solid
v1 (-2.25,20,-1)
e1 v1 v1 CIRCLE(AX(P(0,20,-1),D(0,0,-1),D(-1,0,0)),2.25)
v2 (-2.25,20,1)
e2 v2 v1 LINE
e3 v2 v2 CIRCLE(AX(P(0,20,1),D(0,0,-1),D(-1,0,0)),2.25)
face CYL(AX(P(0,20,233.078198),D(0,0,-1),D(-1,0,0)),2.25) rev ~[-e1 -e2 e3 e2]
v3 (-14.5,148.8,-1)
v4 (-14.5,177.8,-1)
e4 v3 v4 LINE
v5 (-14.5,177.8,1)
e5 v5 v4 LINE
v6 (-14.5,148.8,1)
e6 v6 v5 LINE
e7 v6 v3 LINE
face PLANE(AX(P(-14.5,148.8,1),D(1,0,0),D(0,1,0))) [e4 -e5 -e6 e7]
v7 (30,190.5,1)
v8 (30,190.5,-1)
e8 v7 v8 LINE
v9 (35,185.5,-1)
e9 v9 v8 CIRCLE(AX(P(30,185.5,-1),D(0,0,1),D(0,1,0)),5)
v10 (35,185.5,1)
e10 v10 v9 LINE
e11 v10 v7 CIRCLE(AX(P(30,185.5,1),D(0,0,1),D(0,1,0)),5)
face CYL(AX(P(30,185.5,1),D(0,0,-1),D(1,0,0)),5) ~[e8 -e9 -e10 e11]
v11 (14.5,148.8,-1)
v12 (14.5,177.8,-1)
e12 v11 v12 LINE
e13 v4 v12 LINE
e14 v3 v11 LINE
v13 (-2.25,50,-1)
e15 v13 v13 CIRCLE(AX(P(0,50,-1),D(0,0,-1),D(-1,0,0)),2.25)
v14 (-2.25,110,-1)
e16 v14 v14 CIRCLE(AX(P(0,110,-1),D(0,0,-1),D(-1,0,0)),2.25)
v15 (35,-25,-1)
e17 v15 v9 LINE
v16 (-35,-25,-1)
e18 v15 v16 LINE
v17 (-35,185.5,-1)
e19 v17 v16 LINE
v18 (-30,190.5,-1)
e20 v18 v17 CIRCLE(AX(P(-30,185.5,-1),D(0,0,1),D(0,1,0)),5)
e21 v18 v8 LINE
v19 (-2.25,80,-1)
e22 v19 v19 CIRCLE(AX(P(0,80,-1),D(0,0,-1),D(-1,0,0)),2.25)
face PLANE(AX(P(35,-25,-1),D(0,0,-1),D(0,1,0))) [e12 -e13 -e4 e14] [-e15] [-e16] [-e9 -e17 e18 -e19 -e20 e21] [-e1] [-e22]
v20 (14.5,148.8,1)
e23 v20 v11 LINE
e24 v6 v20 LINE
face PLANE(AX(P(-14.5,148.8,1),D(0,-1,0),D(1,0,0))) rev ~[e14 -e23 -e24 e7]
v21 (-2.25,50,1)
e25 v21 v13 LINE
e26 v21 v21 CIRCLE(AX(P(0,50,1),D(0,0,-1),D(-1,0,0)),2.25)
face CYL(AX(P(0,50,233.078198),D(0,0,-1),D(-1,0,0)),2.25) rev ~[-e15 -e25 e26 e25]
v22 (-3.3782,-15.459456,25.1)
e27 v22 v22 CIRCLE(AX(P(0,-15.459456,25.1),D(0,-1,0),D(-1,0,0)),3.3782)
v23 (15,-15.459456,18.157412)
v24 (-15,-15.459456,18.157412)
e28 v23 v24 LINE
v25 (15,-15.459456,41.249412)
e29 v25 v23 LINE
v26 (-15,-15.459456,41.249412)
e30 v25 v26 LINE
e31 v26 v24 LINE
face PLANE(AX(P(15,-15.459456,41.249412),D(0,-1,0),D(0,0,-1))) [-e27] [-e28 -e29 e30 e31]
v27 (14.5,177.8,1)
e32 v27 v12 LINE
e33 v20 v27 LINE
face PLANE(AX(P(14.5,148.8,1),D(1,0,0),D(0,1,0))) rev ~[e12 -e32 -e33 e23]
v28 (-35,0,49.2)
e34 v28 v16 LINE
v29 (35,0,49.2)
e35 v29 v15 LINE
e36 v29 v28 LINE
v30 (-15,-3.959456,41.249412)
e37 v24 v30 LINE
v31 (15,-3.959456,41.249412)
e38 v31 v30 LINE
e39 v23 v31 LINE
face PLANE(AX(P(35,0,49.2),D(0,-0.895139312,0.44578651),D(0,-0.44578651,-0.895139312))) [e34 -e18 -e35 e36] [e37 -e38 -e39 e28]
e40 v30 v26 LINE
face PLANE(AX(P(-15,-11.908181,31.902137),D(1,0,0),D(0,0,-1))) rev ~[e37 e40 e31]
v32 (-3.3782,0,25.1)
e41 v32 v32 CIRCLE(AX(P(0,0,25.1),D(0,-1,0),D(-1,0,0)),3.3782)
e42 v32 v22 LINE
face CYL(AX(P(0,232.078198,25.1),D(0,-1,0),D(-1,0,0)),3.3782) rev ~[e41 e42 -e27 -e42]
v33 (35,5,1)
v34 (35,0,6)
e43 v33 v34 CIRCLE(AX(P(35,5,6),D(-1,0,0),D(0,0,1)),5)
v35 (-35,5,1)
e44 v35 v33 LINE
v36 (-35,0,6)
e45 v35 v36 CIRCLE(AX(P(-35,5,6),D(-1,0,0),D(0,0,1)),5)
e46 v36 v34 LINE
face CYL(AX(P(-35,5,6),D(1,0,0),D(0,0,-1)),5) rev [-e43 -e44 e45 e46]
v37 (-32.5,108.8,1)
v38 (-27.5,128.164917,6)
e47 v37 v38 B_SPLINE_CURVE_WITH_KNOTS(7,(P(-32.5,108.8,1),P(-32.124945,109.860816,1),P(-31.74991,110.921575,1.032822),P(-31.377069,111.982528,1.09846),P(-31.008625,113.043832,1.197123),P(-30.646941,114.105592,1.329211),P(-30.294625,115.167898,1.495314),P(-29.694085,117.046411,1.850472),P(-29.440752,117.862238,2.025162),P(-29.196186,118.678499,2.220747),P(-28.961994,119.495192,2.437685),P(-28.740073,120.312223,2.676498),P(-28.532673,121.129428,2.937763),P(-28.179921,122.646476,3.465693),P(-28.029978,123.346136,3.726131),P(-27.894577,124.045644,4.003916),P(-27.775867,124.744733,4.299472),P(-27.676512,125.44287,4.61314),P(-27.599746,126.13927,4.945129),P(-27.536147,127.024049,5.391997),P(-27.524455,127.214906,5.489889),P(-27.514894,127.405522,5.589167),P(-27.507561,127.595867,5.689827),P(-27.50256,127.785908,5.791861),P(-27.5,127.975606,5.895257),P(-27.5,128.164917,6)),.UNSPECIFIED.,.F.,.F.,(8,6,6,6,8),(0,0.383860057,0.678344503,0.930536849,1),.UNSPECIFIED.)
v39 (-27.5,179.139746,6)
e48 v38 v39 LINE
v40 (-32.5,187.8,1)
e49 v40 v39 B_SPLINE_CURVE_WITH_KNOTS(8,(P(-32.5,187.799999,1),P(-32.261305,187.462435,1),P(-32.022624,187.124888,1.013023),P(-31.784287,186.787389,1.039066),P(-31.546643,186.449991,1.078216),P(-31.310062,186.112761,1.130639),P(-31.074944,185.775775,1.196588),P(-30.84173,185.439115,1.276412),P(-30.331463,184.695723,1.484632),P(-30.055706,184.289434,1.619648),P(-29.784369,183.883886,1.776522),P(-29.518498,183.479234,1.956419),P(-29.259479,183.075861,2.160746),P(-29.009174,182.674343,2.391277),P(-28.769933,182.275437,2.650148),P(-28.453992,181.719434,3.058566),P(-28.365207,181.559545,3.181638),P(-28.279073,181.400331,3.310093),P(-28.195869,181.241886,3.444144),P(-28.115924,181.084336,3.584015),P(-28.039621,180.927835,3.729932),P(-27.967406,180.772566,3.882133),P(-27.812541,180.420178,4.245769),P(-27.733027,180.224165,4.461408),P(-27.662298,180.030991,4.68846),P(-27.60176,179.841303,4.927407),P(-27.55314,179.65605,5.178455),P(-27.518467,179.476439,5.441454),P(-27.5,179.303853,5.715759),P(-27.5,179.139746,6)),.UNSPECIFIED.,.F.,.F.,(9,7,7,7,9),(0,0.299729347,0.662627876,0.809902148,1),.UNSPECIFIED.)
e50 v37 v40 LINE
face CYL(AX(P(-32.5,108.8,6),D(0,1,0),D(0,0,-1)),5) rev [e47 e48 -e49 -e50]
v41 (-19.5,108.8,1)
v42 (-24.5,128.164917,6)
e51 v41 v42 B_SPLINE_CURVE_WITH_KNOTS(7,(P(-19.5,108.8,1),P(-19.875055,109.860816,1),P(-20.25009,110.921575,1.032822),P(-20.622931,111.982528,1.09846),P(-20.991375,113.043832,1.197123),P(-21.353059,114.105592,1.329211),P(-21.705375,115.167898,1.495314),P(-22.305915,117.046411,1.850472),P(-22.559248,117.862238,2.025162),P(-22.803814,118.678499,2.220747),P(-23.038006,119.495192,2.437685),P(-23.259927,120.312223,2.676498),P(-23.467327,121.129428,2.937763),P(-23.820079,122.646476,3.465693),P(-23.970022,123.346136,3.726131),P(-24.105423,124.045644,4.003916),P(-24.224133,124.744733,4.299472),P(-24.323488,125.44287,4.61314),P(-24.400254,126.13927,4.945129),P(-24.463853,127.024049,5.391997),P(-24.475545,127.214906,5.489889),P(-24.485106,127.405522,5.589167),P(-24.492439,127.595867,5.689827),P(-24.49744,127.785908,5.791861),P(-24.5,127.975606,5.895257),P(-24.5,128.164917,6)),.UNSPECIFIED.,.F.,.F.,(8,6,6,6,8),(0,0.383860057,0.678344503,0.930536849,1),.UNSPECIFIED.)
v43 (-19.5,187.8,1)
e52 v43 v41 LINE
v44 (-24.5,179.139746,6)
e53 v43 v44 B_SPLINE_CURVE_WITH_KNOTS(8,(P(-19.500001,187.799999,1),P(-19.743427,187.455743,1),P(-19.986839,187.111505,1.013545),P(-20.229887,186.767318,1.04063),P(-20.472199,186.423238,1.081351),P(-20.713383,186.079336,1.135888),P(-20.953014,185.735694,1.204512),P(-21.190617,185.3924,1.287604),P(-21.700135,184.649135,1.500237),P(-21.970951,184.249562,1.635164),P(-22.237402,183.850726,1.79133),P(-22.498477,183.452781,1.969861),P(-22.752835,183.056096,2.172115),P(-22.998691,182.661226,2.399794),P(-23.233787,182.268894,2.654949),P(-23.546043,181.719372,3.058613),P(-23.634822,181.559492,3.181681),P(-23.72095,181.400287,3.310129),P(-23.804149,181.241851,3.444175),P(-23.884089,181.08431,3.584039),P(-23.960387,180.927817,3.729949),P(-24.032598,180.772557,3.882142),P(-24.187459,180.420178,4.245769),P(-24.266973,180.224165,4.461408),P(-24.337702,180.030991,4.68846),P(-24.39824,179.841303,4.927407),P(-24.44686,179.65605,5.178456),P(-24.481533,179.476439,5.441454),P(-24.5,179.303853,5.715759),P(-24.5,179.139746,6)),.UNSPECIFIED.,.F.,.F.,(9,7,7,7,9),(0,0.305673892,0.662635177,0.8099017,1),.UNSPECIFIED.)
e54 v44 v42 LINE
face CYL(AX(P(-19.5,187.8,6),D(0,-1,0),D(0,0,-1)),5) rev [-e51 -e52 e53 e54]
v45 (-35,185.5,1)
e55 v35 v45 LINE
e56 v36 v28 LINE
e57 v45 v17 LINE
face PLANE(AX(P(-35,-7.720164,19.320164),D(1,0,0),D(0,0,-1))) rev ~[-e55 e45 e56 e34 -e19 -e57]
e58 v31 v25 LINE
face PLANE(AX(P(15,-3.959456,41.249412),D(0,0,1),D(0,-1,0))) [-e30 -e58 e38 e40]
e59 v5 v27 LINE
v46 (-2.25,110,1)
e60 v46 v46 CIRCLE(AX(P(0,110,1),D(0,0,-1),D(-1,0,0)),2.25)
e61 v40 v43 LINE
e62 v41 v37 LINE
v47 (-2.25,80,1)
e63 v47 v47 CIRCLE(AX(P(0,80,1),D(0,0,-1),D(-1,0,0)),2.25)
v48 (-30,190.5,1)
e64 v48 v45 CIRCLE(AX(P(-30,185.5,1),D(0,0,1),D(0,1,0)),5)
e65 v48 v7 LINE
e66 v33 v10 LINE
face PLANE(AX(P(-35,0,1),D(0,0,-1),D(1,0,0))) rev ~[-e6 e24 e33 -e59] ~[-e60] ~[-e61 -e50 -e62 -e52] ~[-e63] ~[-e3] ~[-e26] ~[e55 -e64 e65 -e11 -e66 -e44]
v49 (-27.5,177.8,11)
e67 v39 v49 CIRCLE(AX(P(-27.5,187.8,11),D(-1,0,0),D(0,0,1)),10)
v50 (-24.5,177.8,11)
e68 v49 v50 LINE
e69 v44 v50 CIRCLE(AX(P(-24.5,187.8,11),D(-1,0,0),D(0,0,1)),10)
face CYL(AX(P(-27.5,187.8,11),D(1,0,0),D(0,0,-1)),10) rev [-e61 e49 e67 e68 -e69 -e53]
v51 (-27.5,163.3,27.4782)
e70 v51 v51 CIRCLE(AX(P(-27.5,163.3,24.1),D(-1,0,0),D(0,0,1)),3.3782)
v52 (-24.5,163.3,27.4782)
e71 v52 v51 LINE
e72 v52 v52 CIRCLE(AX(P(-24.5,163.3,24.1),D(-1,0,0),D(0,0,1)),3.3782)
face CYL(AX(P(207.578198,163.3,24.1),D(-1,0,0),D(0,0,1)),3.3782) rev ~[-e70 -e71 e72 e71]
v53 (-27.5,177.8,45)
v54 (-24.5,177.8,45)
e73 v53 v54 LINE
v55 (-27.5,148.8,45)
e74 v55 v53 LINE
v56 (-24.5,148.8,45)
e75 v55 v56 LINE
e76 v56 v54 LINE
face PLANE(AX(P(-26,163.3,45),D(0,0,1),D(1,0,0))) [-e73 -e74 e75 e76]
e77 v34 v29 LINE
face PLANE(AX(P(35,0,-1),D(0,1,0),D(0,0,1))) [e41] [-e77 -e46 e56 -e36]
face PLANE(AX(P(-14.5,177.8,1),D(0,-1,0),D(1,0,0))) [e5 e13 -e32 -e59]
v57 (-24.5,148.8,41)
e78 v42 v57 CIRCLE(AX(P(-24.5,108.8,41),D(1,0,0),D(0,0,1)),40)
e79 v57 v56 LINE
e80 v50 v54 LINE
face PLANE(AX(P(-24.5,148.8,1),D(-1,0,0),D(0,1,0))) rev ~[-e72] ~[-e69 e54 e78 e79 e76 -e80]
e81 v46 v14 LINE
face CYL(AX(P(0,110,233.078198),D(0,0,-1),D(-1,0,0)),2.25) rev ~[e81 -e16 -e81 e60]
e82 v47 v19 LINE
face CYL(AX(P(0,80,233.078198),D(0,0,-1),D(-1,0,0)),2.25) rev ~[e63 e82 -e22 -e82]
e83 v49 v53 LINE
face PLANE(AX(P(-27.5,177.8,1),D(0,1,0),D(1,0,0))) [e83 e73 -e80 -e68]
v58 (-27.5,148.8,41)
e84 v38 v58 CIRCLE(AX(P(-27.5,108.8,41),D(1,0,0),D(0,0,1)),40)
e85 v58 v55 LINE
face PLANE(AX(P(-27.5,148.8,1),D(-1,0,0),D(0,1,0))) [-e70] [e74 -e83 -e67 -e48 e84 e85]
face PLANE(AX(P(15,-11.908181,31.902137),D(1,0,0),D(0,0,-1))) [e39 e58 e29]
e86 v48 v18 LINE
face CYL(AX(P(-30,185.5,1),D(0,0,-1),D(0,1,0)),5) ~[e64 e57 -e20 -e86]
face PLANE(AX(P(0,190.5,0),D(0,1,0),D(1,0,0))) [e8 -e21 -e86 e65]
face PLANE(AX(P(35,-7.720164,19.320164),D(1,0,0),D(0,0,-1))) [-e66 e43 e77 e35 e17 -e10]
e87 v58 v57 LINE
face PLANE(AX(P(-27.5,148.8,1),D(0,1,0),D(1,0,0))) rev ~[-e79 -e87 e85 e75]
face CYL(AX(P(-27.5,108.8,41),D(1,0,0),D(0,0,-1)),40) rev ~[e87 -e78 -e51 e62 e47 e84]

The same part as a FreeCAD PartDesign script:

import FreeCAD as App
import Part
import Sketcher
from FreeCAD import Vector


def edges_at(feature, points):
    """Names of the edges that pass closest to the given points."""
    edges = feature.Shape.Edges
    near = lambda p: min(range(len(edges)), key=lambda i: edges[i].distToShape(Part.Vertex(*p))[0])
    return sorted({f"Edge{near(p) + 1}" for p in points})

doc = App.newDocument("Part")
body = doc.addObject("PartDesign::Body", "Body")

# Sketch on XZ plane
sketch1 = body.newObject("Sketcher::SketchObject", "Sketch")
sketch1.AttachmentSupport = (doc.getObject("XZ_Plane"), [""])
sketch1.MapMode = "FlatFace"
sketch1.addGeometry([
    Part.LineSegment(Vector(-35, -1, 0), Vector(-35, 1, 0)),
    Part.LineSegment(Vector(-35, 1, 0), Vector(35, 1, 0)),
    Part.LineSegment(Vector(35, 1, 0), Vector(35, -1, 0)),
    Part.LineSegment(Vector(35, -1, 0), Vector(-35, -1, 0)),
], False)
sketch1.addConstraint([
    Sketcher.Constraint("Coincident", 0, 2, 1, 1),
    Sketcher.Constraint("Coincident", 1, 2, 2, 1),
    Sketcher.Constraint("Coincident", 2, 2, 3, 1),
    Sketcher.Constraint("Coincident", 3, 2, 0, 1),
    Sketcher.Constraint("Vertical", 0),
    Sketcher.Constraint("Horizontal", 1),
    Sketcher.Constraint("Vertical", 2),
    Sketcher.Constraint("Horizontal", 3),
    Sketcher.Constraint("Symmetric", 0, 2, 2, 2, -1, 1),
    Sketcher.Constraint("DistanceX", 1, 1, 1, 2, 70.0),
    Sketcher.Constraint("DistanceY", 0, 1, 0, 2, 2.0),
])
pad1 = body.newObject("PartDesign::Pad", "Pad")
pad1.Profile = sketch1
pad1.Length = 190.5
pad1.Reversed = True

# Sketch on YZ plane
sketch2 = body.newObject("Sketcher::SketchObject", "Sketch001")
sketch2.AttachmentSupport = (doc.getObject("YZ_Plane"), [""])
sketch2.MapMode = "FlatFace"
sketch2.AttachmentOffset = App.Placement(Vector(0, 0, 35), App.Rotation())
sketch2.addGeometry([
    Part.LineSegment(Vector(0, -1, 0), Vector(0, 49, 0)),
    Part.LineSegment(Vector(0, 49, 0), Vector(-25, -1, 0)),
    Part.LineSegment(Vector(-25, -1, 0), Vector(0, -1, 0)),
], False)
sketch2.addConstraint([
    Sketcher.Constraint("Coincident", 0, 2, 1, 1),
    Sketcher.Constraint("Coincident", 1, 2, 2, 1),
    Sketcher.Constraint("Coincident", 2, 2, 0, 1),
    Sketcher.Constraint("Vertical", 0),
    Sketcher.Constraint("Horizontal", 2),
    Sketcher.Constraint("PointOnObject", 0, 2, -2),
    Sketcher.Constraint("DistanceX", 2, 1, 2, 2, 25.0),
    Sketcher.Constraint("DistanceY", 0, 1, 0, 2, 50.2),
    Sketcher.Constraint("DistanceY", 1, 2, -1, 1, 1.0),
])
pad2 = body.newObject("PartDesign::Pad", "Pad001")
pad2.Profile = sketch2
pad2.Length = 70
pad2.Reversed = True

# Sketch on XY plane
sketch3 = body.newObject("Sketcher::SketchObject", "Sketch002")
sketch3.AttachmentSupport = (doc.getObject("XY_Plane"), [""])
sketch3.MapMode = "FlatFace"
sketch3.AttachmentOffset = App.Placement(Vector(0, 0, 1), App.Rotation())
sketch3.addGeometry([
    Part.LineSegment(Vector(-27.5, 177.8, 0), Vector(-27.5, 148.8, 0)),
    Part.LineSegment(Vector(-27.5, 148.8, 0), Vector(-24.5, 148.8, 0)),
    Part.LineSegment(Vector(-24.5, 148.8, 0), Vector(-24.5, 177.8, 0)),
    Part.LineSegment(Vector(-24.5, 177.8, 0), Vector(-27.5, 177.8, 0)),
], False)
sketch3.addConstraint([
    Sketcher.Constraint("Coincident", 0, 2, 1, 1),
    Sketcher.Constraint("Coincident", 1, 2, 2, 1),
    Sketcher.Constraint("Coincident", 2, 2, 3, 1),
    Sketcher.Constraint("Coincident", 3, 2, 0, 1),
    Sketcher.Constraint("Vertical", 0),
    Sketcher.Constraint("Horizontal", 1),
    Sketcher.Constraint("Vertical", 2),
    Sketcher.Constraint("Horizontal", 3),
    Sketcher.Constraint("DistanceX", 1, 1, 1, 2, 3.0),
    Sketcher.Constraint("DistanceY", 0, 2, 0, 1, 29.0),
    Sketcher.Constraint("DistanceX", 0, 2, -1, 1, 27.5),
    Sketcher.Constraint("DistanceY", -1, 1, 0, 2, 148.8),
])
pad3 = body.newObject("PartDesign::Pad", "Pad002")
pad3.Profile = sketch3
pad3.Length = 44
doc.recompute()

fillet = body.newObject("PartDesign::Fillet", "Fillet")
fillet.Base = (pad3, edges_at(pad3, [(-26, 148.8, 1)]))
fillet.Radius = 40
doc.recompute()

fillet2 = body.newObject("PartDesign::Fillet", "Fillet001")
fillet2.Base = (fillet, edges_at(fillet, [(-26, 177.8, 1)]))
fillet2.Radius = 10
doc.recompute()

fillet3 = body.newObject("PartDesign::Fillet", "Fillet002")
fillet3.Base = (fillet2, edges_at(fillet2, [(-27.5, 148.3, 1)]))
fillet3.Radius = 5

# Sketch on YZ plane
sketch4 = body.newObject("Sketcher::SketchObject", "Sketch003")
sketch4.AttachmentSupport = (doc.getObject("YZ_Plane"), [""])
sketch4.MapMode = "FlatFace"
sketch4.addGeometry([
    Part.LineSegment(Vector(-15, 41, 0), Vector(-4, 41, 0)),
    Part.LineSegment(Vector(-4, 41, 0), Vector(-15, 18, 0)),
    Part.LineSegment(Vector(-15, 18, 0), Vector(-15, 41, 0)),
], False)
sketch4.addConstraint([
    Sketcher.Constraint("Coincident", 0, 2, 1, 1),
    Sketcher.Constraint("Coincident", 1, 2, 2, 1),
    Sketcher.Constraint("Coincident", 2, 2, 0, 1),
    Sketcher.Constraint("Horizontal", 0),
    Sketcher.Constraint("Vertical", 2),
    Sketcher.Constraint("DistanceX", 0, 1, 0, 2, 11.5),
    Sketcher.Constraint("DistanceY", 2, 1, 2, 2, 23.092),
    Sketcher.Constraint("DistanceX", 0, 2, -1, 1, 3.959456),
    Sketcher.Constraint("DistanceY", -1, 1, 0, 2, 41.249412),
])
pad4 = body.newObject("PartDesign::Pad", "Pad003")
pad4.Profile = sketch4
pad4.Type = "TwoLengths"
pad4.Length = 15
pad4.Length2 = 15
pad4.Reversed = True

# Sketch on XZ plane
sketch5 = body.newObject("Sketcher::SketchObject", "Sketch004")
sketch5.AttachmentSupport = (doc.getObject("XZ_Plane"), [""])
sketch5.MapMode = "FlatFace"
sketch5.addGeometry(Part.Circle(Vector(0, 25.1, 0), Vector(0, 0, 1), 3.4), False)
sketch5.addConstraint([
    Sketcher.Constraint("PointOnObject", 0, 3, -2),
    Sketcher.Constraint("Diameter", 0, 6.7564),
    Sketcher.Constraint("DistanceY", -1, 1, 0, 3, 25.1),
])
doc.recompute()
hole = body.newObject("PartDesign::Hole", "Hole")
hole.Profile = sketch5
hole.ThreadType = "None"
hole.Diameter = 6.7564
hole.DepthType = "ThroughAll"
hole.Reversed = True

# Sketch on YZ plane
sketch6 = body.newObject("Sketcher::SketchObject", "Sketch005")
sketch6.AttachmentSupport = (doc.getObject("YZ_Plane"), [""])
sketch6.MapMode = "FlatFace"
sketch6.AttachmentOffset = App.Placement(Vector(0, 0, -24.5), App.Rotation())
sketch6.addGeometry(Part.Circle(Vector(163.3, 24.1, 0), Vector(0, 0, 1), 3.4), False)
sketch6.addConstraint([
    Sketcher.Constraint("Diameter", 0, 6.7564),
    Sketcher.Constraint("DistanceX", -1, 1, 0, 3, 163.3),
    Sketcher.Constraint("DistanceY", -1, 1, 0, 3, 24.1),
])
doc.recompute()
hole2 = body.newObject("PartDesign::Hole", "Hole001")
hole2.Profile = sketch6
hole2.ThreadType = "None"
hole2.Diameter = 6.7564
hole2.DepthType = "ThroughAll"

# Sketch on XY plane
sketch7 = body.newObject("Sketcher::SketchObject", "Sketch006")
sketch7.AttachmentSupport = (doc.getObject("XY_Plane"), [""])
sketch7.MapMode = "FlatFace"
sketch7.AttachmentOffset = App.Placement(Vector(0, 0, 1), App.Rotation())
sketch7.addGeometry([
    Part.Circle(Vector(0, 20, 0), Vector(0, 0, 1), 2.2),
    Part.Circle(Vector(0, 50, 0), Vector(0, 0, 1), 2.2),
    Part.Circle(Vector(0, 80, 0), Vector(0, 0, 1), 2.2),
    Part.Circle(Vector(0, 110, 0), Vector(0, 0, 1), 2.2),
], False)
sketch7.addConstraint([
    Sketcher.Constraint("Equal", 0, 1),
    Sketcher.Constraint("Equal", 1, 2),
    Sketcher.Constraint("Equal", 2, 3),
    Sketcher.Constraint("PointOnObject", 0, 3, -2),
    Sketcher.Constraint("PointOnObject", 1, 3, -2),
    Sketcher.Constraint("PointOnObject", 2, 3, -2),
    Sketcher.Constraint("PointOnObject", 3, 3, -2),
    Sketcher.Constraint("Diameter", 0, 4.5),
    Sketcher.Constraint("DistanceY", -1, 1, 0, 3, 20.0),
    Sketcher.Constraint("DistanceY", -1, 1, 1, 3, 50.0),
    Sketcher.Constraint("DistanceY", -1, 1, 2, 3, 80.0),
    Sketcher.Constraint("DistanceY", -1, 1, 3, 3, 110.0),
])
doc.recompute()
hole3 = body.newObject("PartDesign::Hole", "Hole002")
hole3.Profile = sketch7
hole3.ThreadType = "None"
hole3.Diameter = 4.5
hole3.DepthType = "ThroughAll"
doc.recompute()

fillet4 = body.newObject("PartDesign::Fillet", "Fillet003")
fillet4.Base = (hole3, edges_at(hole3, [(0, 0, 1)]))
fillet4.Radius = 5

# Sketch on XY plane
sketch8 = body.newObject("Sketcher::SketchObject", "Sketch007")
sketch8.AttachmentSupport = (doc.getObject("XY_Plane"), [""])
sketch8.MapMode = "FlatFace"
sketch8.AttachmentOffset = App.Placement(Vector(0, 0, 1), App.Rotation())
sketch8.addGeometry([
    Part.LineSegment(Vector(-14, 178, 0), Vector(-14, 149, 0)),
    Part.LineSegment(Vector(-14, 149, 0), Vector(14, 149, 0)),
    Part.LineSegment(Vector(14, 149, 0), Vector(14, 178, 0)),
    Part.LineSegment(Vector(14, 178, 0), Vector(-14, 178, 0)),
], False)
sketch8.addConstraint([
    Sketcher.Constraint("Coincident", 0, 2, 1, 1),
    Sketcher.Constraint("Coincident", 1, 2, 2, 1),
    Sketcher.Constraint("Coincident", 2, 2, 3, 1),
    Sketcher.Constraint("Coincident", 3, 2, 0, 1),
    Sketcher.Constraint("Vertical", 0),
    Sketcher.Constraint("Horizontal", 1),
    Sketcher.Constraint("Vertical", 2),
    Sketcher.Constraint("Horizontal", 3),
    Sketcher.Constraint("Equal", 3, 0),
    Sketcher.Constraint("DistanceX", 1, 1, 1, 2, 29.0),
    Sketcher.Constraint("DistanceX", 0, 2, -1, 1, 14.5),
    Sketcher.Constraint("DistanceY", -1, 1, 0, 2, 148.8),
])
pocket1 = body.newObject("PartDesign::Pocket", "Pocket")
pocket1.Profile = sketch8
pocket1.Length = 2
doc.recompute()

fillet5 = body.newObject("PartDesign::Fillet", "Fillet004")
fillet5.Base = (pocket1, edges_at(pocket1, [(-24.5, 148.3, 1)]))
fillet5.Radius = 5
doc.recompute()

fillet6 = body.newObject("PartDesign::Fillet", "Fillet005")
fillet6.Base = (fillet5, edges_at(fillet5, [(35, 190.5, 0)]))
fillet6.Radius = 5
doc.recompute()

fillet7 = body.newObject("PartDesign::Fillet", "Fillet006")
fillet7.Base = (fillet6, edges_at(fillet6, [(-35, 190.5, 0)]))
fillet7.Radius = 5

doc.recompute()
